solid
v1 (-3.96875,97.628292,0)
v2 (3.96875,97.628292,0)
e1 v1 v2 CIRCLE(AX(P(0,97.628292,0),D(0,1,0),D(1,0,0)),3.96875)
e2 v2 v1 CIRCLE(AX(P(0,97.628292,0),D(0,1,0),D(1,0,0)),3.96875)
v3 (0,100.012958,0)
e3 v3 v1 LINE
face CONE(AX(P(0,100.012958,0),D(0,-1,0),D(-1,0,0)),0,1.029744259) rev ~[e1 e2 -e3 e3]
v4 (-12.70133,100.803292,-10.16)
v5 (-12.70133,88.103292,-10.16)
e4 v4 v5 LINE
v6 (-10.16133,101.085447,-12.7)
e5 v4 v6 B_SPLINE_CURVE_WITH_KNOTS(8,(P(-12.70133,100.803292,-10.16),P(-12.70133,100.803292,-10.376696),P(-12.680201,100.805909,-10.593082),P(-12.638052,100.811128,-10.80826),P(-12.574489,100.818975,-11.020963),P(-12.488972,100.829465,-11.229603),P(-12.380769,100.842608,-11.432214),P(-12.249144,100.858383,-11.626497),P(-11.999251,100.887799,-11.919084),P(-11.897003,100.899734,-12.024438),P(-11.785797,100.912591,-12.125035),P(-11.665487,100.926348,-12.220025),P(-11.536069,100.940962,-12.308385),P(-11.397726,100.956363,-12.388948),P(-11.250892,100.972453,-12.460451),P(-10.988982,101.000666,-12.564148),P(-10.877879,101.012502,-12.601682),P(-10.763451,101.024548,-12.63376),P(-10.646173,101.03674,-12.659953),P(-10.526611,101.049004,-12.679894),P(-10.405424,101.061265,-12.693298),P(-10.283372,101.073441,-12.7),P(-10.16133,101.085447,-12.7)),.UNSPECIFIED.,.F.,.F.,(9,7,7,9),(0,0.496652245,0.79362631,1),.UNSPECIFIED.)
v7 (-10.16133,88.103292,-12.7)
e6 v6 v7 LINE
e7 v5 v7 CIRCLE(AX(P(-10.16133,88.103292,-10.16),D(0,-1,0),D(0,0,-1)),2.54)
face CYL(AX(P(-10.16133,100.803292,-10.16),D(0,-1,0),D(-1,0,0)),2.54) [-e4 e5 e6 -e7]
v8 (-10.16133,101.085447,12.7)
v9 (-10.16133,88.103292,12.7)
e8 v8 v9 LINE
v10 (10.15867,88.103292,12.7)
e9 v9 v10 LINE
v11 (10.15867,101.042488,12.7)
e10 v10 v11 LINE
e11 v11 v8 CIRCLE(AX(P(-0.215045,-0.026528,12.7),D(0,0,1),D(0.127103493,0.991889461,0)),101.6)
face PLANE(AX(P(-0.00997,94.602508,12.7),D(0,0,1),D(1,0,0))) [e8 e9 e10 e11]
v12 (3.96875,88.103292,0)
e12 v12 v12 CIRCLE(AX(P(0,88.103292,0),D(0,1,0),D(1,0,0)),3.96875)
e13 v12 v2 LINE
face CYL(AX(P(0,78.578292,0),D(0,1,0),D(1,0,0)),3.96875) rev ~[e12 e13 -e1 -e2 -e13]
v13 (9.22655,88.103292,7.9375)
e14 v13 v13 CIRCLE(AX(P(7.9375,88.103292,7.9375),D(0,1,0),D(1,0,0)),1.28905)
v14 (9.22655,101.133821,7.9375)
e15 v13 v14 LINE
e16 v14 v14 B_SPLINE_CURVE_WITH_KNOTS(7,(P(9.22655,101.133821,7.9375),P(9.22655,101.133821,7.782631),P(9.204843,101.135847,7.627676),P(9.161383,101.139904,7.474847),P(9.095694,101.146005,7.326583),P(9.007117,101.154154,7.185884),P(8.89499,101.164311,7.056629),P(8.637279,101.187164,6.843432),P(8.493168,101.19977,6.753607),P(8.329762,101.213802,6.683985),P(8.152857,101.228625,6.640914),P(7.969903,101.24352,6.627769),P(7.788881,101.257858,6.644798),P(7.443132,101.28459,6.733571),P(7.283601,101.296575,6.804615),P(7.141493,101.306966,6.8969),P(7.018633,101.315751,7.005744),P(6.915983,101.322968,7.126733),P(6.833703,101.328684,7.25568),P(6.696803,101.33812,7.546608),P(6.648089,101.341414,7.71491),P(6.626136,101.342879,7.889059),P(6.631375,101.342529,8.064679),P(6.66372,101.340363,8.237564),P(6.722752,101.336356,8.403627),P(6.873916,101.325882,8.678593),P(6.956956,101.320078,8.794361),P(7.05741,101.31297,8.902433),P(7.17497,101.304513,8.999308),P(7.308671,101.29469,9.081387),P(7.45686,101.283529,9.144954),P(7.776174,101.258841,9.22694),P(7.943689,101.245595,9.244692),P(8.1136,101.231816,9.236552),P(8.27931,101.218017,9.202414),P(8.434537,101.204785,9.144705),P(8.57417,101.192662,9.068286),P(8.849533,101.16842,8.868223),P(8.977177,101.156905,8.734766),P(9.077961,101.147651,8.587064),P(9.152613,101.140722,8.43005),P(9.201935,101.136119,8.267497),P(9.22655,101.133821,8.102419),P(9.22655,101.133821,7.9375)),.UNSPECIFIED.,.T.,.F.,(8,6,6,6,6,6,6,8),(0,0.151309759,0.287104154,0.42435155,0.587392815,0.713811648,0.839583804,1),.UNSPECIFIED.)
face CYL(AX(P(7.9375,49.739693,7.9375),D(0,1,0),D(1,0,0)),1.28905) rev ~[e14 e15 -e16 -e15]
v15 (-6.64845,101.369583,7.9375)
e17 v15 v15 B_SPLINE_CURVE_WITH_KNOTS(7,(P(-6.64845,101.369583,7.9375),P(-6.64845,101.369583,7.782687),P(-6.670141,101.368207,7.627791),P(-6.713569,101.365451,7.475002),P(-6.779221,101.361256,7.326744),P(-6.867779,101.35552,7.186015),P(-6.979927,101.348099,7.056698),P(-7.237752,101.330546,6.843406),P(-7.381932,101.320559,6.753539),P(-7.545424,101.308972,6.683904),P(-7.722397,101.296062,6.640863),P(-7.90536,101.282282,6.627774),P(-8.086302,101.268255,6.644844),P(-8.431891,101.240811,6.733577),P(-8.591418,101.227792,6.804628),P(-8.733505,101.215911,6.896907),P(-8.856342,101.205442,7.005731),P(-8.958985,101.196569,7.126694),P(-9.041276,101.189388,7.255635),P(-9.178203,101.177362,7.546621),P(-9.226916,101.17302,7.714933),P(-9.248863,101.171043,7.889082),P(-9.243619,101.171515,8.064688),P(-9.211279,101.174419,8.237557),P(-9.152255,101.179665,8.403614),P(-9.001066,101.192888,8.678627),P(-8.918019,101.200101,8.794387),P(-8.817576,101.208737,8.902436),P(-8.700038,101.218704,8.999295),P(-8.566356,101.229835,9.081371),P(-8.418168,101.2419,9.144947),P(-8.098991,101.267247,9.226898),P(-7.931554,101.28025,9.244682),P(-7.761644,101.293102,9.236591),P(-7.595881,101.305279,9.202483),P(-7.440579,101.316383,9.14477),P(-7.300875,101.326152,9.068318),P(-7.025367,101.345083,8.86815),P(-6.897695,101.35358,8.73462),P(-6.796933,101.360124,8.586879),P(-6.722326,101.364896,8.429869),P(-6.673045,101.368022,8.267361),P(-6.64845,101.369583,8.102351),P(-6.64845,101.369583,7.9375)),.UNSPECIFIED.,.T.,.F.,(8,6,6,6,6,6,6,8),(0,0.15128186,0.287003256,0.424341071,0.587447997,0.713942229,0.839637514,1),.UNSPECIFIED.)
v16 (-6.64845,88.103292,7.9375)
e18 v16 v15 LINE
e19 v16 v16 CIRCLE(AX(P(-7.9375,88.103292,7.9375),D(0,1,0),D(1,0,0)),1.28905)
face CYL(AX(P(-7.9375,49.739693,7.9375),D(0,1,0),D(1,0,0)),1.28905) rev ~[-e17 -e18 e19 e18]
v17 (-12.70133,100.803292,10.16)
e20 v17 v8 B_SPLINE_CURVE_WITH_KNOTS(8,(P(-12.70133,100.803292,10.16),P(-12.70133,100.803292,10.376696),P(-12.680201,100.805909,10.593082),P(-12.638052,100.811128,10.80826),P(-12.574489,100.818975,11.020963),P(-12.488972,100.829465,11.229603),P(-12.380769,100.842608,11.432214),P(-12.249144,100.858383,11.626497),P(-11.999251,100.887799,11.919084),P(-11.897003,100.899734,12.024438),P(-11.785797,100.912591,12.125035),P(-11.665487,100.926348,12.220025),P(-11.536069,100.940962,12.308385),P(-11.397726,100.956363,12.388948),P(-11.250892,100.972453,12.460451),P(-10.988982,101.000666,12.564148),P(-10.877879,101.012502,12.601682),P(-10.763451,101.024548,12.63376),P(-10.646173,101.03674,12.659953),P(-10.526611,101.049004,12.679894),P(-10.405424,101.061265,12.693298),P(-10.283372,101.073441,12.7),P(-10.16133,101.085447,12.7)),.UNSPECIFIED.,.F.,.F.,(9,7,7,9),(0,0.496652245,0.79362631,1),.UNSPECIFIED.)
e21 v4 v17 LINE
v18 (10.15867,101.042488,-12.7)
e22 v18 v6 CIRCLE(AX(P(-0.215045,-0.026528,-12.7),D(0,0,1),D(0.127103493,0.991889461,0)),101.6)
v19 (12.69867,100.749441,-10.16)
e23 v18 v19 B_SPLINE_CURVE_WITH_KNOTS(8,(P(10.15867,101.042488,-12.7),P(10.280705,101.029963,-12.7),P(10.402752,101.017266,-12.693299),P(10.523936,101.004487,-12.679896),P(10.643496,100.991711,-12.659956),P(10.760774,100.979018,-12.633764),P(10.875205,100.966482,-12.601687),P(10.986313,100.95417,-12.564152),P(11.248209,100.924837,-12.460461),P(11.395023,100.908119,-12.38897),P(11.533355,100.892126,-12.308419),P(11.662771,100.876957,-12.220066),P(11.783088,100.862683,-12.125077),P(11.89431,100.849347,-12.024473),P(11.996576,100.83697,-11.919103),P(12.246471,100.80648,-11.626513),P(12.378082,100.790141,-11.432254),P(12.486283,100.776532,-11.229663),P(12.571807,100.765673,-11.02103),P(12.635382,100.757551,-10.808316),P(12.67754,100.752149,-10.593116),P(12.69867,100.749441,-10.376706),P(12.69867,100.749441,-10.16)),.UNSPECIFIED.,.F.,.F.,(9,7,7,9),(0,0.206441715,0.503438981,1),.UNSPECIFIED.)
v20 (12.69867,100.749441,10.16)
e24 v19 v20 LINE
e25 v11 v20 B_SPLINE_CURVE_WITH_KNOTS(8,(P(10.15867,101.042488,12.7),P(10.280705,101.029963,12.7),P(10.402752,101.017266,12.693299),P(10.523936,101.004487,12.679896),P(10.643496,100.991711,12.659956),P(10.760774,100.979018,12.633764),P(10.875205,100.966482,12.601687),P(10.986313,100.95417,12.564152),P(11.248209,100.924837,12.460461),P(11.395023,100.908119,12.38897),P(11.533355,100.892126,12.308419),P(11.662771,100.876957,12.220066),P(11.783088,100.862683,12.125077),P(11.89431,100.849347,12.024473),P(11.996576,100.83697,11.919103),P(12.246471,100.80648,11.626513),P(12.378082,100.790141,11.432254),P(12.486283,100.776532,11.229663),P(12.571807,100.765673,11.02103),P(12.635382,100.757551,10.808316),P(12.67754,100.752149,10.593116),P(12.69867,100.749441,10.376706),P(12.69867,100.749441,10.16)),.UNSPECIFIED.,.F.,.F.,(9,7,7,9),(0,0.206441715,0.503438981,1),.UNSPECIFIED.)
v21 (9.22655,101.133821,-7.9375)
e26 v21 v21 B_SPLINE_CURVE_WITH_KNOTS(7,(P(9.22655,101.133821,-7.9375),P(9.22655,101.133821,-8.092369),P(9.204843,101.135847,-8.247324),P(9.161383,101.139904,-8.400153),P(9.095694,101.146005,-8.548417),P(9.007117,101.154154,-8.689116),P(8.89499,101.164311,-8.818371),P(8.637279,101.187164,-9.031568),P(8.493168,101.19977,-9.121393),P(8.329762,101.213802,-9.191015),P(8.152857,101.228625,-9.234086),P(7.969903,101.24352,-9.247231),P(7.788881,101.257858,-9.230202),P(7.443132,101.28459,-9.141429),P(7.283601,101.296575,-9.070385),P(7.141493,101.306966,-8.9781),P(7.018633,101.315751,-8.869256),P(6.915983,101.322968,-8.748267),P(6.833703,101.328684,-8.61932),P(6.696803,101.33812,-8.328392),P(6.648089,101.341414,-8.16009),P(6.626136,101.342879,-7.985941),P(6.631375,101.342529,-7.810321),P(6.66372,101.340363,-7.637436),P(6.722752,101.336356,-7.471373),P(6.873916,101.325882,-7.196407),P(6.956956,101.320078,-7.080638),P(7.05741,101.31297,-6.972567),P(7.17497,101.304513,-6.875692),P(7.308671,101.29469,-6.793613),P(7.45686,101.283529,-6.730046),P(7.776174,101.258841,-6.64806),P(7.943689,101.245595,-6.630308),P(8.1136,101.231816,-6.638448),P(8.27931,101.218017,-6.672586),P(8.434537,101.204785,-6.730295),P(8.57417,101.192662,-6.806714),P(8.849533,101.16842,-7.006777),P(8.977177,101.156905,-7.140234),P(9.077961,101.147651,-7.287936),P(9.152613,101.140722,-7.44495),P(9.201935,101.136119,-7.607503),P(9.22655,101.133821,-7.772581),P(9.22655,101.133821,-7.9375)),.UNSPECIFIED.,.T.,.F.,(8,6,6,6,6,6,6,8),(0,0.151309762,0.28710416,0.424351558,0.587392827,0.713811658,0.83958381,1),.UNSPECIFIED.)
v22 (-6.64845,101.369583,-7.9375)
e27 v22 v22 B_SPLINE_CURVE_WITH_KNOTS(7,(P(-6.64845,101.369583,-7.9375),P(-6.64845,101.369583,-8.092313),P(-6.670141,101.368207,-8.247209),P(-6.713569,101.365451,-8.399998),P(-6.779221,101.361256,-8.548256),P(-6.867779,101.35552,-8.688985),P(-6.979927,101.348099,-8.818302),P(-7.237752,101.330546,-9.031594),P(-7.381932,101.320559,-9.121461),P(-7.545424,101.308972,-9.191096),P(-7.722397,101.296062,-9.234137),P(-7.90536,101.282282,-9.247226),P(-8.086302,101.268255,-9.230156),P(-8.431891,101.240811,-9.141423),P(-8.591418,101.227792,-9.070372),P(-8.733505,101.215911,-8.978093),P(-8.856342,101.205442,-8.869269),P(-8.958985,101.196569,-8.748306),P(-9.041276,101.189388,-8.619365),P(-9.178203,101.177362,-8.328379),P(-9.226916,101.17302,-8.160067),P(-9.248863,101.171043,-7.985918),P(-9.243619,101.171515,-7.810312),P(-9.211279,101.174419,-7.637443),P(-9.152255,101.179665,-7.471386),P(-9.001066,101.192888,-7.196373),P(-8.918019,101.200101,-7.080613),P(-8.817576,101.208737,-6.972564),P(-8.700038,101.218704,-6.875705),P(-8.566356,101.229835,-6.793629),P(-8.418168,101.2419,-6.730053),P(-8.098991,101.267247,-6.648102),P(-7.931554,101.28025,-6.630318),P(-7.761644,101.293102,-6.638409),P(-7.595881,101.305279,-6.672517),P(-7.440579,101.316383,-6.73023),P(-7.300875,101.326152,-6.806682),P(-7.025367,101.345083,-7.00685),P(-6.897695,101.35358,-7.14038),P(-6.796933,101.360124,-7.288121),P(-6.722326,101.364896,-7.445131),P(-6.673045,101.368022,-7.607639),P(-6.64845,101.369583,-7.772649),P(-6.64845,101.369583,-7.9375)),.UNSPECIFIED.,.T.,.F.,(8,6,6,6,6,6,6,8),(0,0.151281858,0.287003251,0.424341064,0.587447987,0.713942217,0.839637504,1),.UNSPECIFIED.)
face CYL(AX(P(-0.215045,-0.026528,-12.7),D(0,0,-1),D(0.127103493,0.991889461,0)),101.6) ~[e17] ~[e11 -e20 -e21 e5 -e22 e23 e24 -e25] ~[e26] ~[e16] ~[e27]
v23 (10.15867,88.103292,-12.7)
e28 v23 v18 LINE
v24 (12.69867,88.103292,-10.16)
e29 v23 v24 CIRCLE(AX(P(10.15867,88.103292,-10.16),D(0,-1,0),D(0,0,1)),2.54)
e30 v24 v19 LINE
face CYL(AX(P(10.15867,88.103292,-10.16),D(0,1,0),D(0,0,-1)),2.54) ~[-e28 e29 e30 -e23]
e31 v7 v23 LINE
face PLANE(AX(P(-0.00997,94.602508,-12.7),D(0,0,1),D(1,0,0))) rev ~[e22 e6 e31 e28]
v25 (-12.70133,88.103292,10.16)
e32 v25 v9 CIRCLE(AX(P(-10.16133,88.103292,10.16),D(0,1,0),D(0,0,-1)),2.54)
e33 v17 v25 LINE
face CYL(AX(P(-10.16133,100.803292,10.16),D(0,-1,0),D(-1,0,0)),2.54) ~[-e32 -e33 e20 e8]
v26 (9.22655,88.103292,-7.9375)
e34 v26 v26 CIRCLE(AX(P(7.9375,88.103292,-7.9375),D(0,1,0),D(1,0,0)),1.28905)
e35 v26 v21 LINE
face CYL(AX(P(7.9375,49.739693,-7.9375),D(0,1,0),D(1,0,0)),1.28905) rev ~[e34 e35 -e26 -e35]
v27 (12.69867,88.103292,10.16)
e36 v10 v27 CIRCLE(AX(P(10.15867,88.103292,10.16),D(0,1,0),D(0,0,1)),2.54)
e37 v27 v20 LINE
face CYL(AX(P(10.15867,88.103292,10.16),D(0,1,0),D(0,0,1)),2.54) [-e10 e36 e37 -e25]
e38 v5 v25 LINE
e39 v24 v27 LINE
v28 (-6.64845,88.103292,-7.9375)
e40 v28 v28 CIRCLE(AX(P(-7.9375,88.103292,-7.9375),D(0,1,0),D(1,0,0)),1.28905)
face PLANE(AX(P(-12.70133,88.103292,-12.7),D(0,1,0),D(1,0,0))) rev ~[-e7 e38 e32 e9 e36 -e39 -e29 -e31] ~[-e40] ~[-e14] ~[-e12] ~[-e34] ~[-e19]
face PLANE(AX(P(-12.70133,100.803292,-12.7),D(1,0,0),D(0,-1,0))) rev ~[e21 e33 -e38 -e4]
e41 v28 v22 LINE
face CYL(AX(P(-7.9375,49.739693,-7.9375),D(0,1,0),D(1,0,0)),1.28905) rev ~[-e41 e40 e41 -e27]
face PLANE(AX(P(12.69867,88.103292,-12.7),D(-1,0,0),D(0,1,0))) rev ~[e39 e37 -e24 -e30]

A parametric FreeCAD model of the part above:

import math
import FreeCAD as App
import Part
import Sketcher
Q = App.Units.Quantity


def edges_at(feature, points):
    """Names of the edges that pass closest to the given points."""
    edges = feature.Shape.Edges
    near = lambda p: min(range(len(edges)), key=lambda i: edges[i].distToShape(Part.Vertex(*p))[0])
    return sorted({f"Edge{near(p) + 1}" for p in points})

doc = App.newDocument("Part")
body = doc.addObject("PartDesign::Body", "Body")

sketch1 = body.newObject("Sketcher::SketchObject", "Sketch")
sketch1.AttachmentSupport = (doc.getObject("XY_Plane"), [""])
sketch1.MapMode = "FlatFace"
sketch1.addGeometry([
    Part.LineSegment(App.Vector(-12.70133, 100.803292, 0), App.Vector(-12.70133, 88.103292, 0)),
    Part.LineSegment(App.Vector(-12.70133, 88.103292, 0), App.Vector(12.69867, 88.103292, 0)),
    Part.LineSegment(App.Vector(12.69867, 88.103292, 0), App.Vector(12.69867, 100.749441, 0)),
    Part.ArcOfCircle(Part.Circle(App.Vector(-0.215045, -0.026528, 0), App.Vector(0, 0, 1), 101.6), math.radians(82.697754), math.radians(97.059298)),
], False)
sketch1.addConstraint([
    Sketcher.Constraint("Coincident", 0, 2, 1, 1),
    Sketcher.Constraint("Coincident", 1, 2, 2, 1),
    Sketcher.Constraint("Coincident", 2, 2, 3, 1),
    Sketcher.Constraint("Coincident", 3, 2, 0, 1),
    Sketcher.Constraint("Vertical", 0),
    Sketcher.Constraint("Horizontal", 1),
    Sketcher.Constraint("Vertical", 2),
    Sketcher.Constraint("Radius", 3, Q("4 in")),
    Sketcher.Constraint("DistanceX", 1, 1, 1, 2, Q("1 in")),
    Sketcher.Constraint("DistanceY", 0, 2, 0, 1, Q("0.5 in")),
    Sketcher.Constraint("DistanceY", 2, 1, 2, 2, 12.646149),
    Sketcher.Constraint("DistanceX", 0, 2, -1, 1, 12.70133),
    Sketcher.Constraint("DistanceY", -1, 1, 2, 2, 100.749441),
])
pad1 = body.newObject("PartDesign::Pad", "Pad")
pad1.Profile = sketch1
pad1.Type = "TwoLengths"
pad1.Length = Q("0.5 in")
pad1.Length2 = Q("0.5 in")

sketch2 = body.newObject("Sketcher::SketchObject", "Sketch001")
sketch2.AttachmentSupport = (doc.getObject("XZ_Plane"), [""])
sketch2.MapMode = "FlatFace"
sketch2.AttachmentOffset = App.Placement(App.Vector(0, 0, -88.103292), App.Rotation())
sketch2.addGeometry(Part.Circle(App.Vector(0, 0, 0), App.Vector(0, 0, 1), 3.96875), False)
sketch2.addConstraint([
    Sketcher.Constraint("Coincident", 0, 3, -1, 1),
    Sketcher.Constraint("Diameter", 0, Q("0.3125 in")),
])
doc.recompute()
hole = body.newObject("PartDesign::Hole", "Hole")
hole.Profile = sketch2
hole.ThreadType = "None"
hole.Diameter = Q("0.3125 in")
hole.DepthType = "Dimension"
hole.Depth = Q("0.375 in")
hole.DrillPoint = "Angled"
hole.DrillPointAngle = 118

sketch3 = body.newObject("Sketcher::SketchObject", "Sketch002")
sketch3.AttachmentSupport = (doc.getObject("XZ_Plane"), [""])
sketch3.MapMode = "FlatFace"
sketch3.AttachmentOffset = App.Placement(App.Vector(0, 0, -88.103292), App.Rotation())
sketch3.addGeometry([
    Part.Circle(App.Vector(7.9375, 7.9375, 0), App.Vector(0, 0, 1), 1.28905),
    Part.Circle(App.Vector(7.9375, -7.9375, 0), App.Vector(0, 0, 1), 1.28905),
    Part.Circle(App.Vector(-7.9375, -7.9375, 0), App.Vector(0, 0, 1), 1.28905),
    Part.Circle(App.Vector(-7.9375, 7.9375, 0), App.Vector(0, 0, 1), 1.28905),
], False)
sketch3.addConstraint([
    Sketcher.Constraint("Equal", 0, 1),
    Sketcher.Constraint("Equal", 1, 2),
    Sketcher.Constraint("Equal", 2, 3),
    Sketcher.Constraint("Symmetric", 0, 3, 2, 3, -1, 1),
    Sketcher.Constraint("Symmetric", 1, 3, 3, 3, -1, 1),
    Sketcher.Constraint("Symmetric", 1, 3, 2, 3, -2),
    Sketcher.Constraint("Diameter", 0, Q("0.1015 in")),
    Sketcher.Constraint("DistanceX", -1, 1, 0, 3, Q("0.3125 in")),
    Sketcher.Constraint("DistanceY", -1, 1, 0, 3, Q("0.3125 in")),
])
doc.recompute()
hole2 = body.newObject("PartDesign::Hole", "Hole001")
hole2.Profile = sketch3
hole2.ThreadType = "None"
hole2.Diameter = Q("0.1015 in")
hole2.DepthType = "ThroughAll"
doc.recompute()

fillet = body.newObject("PartDesign::Fillet", "Fillet")
fillet.Base = (hole2, edges_at(hole2, [
    (-12.701, 94.453, 12.7),
    (12.699, 94.426, -12.7),
    (12.699, 94.426, 12.7),
    (-12.701, 94.453, -12.7),
]))
fillet.Radius = Q("0.1 in")

doc.recompute()
